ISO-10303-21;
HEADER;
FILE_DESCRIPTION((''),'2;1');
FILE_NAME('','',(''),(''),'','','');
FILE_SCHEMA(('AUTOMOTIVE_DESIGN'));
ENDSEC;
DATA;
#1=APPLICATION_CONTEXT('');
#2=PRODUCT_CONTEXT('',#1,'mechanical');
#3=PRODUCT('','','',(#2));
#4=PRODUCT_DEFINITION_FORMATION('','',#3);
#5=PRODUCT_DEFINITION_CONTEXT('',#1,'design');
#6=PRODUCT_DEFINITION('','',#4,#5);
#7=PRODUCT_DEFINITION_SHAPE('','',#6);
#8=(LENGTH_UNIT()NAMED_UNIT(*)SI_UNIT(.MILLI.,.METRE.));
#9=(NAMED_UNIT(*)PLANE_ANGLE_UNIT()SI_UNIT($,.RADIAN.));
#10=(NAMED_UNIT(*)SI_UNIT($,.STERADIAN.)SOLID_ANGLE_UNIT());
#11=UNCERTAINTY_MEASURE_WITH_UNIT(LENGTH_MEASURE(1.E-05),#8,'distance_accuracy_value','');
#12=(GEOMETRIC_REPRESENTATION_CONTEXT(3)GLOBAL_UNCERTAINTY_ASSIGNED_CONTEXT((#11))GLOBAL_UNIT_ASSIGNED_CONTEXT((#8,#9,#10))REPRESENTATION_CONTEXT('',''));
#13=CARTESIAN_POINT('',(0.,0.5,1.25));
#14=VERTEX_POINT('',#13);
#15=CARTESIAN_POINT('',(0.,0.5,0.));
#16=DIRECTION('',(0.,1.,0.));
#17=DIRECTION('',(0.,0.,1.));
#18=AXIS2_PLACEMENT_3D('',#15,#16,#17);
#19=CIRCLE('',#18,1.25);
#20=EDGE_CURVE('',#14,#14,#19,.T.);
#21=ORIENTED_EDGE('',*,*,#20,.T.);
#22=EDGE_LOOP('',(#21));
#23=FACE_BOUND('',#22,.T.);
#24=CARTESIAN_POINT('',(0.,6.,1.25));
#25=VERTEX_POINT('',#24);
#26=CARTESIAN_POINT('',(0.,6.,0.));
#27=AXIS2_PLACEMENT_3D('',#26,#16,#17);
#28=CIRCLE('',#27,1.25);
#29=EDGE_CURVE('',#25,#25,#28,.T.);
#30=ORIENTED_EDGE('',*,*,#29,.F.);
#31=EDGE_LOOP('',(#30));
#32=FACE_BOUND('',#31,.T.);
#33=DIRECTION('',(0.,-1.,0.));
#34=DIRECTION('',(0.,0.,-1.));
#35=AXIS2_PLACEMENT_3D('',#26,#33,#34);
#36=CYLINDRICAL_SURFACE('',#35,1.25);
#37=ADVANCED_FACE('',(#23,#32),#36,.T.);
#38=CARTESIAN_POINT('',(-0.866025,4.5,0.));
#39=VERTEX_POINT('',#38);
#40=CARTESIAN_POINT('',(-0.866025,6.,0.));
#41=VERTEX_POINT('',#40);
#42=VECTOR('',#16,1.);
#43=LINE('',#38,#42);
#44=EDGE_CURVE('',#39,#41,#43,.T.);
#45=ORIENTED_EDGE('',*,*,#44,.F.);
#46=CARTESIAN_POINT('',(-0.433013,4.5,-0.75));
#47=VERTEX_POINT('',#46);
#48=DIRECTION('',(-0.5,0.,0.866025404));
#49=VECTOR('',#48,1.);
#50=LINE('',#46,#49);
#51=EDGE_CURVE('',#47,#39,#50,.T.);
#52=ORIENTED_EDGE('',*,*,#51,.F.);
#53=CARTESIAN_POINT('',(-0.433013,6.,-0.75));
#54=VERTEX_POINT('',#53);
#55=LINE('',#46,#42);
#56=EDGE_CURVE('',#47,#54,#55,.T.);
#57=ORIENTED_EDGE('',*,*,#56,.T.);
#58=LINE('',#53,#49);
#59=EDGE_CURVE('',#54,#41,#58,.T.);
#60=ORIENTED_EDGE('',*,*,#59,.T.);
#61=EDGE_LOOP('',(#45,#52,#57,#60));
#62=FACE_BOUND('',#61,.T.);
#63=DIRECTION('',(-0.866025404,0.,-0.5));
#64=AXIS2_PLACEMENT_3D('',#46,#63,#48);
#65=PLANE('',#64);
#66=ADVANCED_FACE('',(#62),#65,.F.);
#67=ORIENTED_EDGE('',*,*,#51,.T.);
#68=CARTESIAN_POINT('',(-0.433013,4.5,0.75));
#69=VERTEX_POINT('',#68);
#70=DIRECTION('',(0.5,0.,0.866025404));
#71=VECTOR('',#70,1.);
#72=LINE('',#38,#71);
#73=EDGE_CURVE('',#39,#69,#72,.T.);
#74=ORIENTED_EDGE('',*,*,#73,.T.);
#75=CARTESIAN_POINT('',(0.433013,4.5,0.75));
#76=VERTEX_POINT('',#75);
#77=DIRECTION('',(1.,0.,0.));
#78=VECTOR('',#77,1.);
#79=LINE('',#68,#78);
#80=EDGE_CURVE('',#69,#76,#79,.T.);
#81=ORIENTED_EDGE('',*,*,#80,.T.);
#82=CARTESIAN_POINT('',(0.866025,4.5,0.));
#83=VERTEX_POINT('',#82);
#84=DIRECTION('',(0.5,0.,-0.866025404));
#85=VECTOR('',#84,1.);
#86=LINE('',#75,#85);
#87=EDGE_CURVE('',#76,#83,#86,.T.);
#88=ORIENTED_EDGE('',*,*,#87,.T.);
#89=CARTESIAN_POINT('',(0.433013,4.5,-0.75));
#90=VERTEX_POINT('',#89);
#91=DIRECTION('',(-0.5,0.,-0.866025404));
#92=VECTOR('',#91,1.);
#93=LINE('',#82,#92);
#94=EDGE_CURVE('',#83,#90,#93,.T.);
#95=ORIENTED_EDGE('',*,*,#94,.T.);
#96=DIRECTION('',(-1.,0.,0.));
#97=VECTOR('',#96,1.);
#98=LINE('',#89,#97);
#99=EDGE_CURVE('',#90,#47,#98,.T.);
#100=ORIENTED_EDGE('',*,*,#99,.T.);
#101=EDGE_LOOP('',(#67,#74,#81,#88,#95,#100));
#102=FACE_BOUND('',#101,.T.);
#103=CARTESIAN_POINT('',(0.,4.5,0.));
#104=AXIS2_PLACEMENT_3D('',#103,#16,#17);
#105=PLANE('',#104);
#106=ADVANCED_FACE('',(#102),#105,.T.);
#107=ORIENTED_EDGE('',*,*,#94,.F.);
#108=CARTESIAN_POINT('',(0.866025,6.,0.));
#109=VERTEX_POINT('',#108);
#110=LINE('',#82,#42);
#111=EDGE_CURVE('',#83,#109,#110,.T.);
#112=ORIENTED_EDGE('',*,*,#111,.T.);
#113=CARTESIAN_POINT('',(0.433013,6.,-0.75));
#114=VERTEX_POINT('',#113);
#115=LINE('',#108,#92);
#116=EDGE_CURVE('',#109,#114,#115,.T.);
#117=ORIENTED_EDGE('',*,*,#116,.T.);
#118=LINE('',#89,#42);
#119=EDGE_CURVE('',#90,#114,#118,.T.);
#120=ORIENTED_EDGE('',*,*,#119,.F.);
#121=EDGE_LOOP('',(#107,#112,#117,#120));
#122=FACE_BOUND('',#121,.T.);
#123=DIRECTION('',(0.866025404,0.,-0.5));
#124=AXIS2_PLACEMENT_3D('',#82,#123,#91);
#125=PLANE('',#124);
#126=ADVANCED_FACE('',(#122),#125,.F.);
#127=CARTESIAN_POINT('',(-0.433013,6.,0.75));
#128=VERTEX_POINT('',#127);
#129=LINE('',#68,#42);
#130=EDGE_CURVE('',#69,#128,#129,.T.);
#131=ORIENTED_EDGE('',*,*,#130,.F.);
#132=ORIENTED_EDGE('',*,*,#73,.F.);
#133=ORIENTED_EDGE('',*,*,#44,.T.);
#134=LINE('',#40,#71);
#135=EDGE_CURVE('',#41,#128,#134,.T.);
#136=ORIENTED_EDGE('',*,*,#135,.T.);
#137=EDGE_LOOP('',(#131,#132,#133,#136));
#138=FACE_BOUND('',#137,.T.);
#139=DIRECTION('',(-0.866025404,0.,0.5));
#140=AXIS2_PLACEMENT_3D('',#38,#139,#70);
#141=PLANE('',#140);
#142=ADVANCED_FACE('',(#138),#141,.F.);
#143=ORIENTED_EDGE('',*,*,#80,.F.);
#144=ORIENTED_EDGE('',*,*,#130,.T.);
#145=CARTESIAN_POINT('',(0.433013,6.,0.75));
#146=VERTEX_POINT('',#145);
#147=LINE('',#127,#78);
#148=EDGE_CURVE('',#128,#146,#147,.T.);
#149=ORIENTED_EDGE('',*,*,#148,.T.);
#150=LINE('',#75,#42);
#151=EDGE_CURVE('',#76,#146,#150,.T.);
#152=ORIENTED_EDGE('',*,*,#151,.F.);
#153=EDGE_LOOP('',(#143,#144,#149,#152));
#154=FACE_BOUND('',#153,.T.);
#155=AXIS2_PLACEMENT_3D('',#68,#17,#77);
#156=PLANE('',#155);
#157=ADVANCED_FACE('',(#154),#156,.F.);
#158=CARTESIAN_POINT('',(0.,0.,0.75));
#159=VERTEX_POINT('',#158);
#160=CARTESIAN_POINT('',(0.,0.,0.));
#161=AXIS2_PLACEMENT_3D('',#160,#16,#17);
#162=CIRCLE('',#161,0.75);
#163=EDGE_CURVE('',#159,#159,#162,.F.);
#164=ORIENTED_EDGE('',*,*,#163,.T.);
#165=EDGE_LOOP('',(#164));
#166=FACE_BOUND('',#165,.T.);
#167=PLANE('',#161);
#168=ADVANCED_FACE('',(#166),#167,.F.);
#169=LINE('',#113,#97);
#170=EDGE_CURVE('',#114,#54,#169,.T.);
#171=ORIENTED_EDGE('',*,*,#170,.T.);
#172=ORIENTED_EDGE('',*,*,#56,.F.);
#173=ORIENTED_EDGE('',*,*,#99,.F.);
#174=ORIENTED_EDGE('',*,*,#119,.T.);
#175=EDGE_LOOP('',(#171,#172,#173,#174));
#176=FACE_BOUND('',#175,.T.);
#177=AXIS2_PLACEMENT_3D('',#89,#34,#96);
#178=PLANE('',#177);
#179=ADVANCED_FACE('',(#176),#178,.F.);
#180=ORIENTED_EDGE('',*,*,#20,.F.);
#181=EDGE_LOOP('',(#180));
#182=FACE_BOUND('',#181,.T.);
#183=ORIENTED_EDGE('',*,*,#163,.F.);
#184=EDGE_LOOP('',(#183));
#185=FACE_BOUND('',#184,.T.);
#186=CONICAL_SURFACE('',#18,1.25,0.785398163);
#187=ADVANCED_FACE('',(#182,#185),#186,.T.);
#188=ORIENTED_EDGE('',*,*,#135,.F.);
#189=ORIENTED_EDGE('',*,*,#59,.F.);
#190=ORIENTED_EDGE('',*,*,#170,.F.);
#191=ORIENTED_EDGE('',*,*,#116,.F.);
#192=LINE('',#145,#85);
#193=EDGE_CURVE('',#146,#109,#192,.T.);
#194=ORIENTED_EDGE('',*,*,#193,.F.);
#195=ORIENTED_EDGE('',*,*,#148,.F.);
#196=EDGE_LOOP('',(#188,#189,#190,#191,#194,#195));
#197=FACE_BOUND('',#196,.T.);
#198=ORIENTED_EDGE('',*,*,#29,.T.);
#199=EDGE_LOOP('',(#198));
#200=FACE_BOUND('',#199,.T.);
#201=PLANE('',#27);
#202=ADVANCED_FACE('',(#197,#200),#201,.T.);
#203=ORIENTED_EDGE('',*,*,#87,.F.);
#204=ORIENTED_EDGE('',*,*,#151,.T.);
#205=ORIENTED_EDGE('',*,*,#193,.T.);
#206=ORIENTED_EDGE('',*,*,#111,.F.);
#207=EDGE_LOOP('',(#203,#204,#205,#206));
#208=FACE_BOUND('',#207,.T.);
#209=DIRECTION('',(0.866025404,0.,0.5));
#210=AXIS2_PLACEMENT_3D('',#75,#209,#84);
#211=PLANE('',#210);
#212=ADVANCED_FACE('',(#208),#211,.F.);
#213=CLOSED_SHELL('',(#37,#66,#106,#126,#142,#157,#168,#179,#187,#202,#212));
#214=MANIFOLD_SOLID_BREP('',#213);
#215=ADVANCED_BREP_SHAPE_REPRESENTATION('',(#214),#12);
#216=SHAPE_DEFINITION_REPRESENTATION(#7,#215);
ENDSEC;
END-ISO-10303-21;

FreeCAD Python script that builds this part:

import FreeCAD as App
import Part
import Sketcher
from FreeCAD import Vector
Q = App.Units.Quantity


def edges_at(feature, points):
    """Names of the edges that pass closest to the given points."""
    edges = feature.Shape.Edges
    near = lambda p: min(range(len(edges)), key=lambda i: edges[i].distToShape(Part.Vertex(*p))[0])
    return sorted({f"Edge{near(p) + 1}" for p in points})

doc = App.newDocument("Part")
body = doc.addObject("PartDesign::Body", "Body")

# Sketch on XZ plane
sketch1 = body.newObject("Sketcher::SketchObject", "Sketch")
sketch1.AttachmentSupport = (doc.getObject("XZ_Plane"), [""])
sketch1.MapMode = "FlatFace"
sketch1.addGeometry(Part.Circle(Vector(0, 0, 0), Vector(0, 0, 1), 1.2), False)
sketch1.addConstraint([
    Sketcher.Constraint("Coincident", 0, 3, -1, 1),
    Sketcher.Constraint("Diameter", 0, 2.5),
])
pad1 = body.newObject("PartDesign::Pad", "Pad")
pad1.Profile = sketch1
pad1.Length = 6
pad1.Reversed = True
doc.recompute()

chamfer = body.newObject("PartDesign::Chamfer", "Chamfer")
chamfer.Base = (pad1, edges_at(pad1, [(-1.25, 0, 0)]))
chamfer.Size = 0.5

# Sketch on XZ plane
sketch2 = body.newObject("Sketcher::SketchObject", "Sketch001")
sketch2.AttachmentSupport = (doc.getObject("XZ_Plane"), [""])
sketch2.MapMode = "FlatFace"
sketch2.AttachmentOffset = App.Placement(Vector(0, 0, -6), App.Rotation())
sketch2.addGeometry([
    Part.LineSegment(Vector(0.4, 0.8, 0), Vector(0.9, 0, 0)),  # 0
    Part.LineSegment(Vector(0.9, 0, 0), Vector(0.4, -0.8, 0)),  # 1
    Part.LineSegment(Vector(0.4, -0.8, 0), Vector(-0.4, -0.8, 0)),  # 2
    Part.LineSegment(Vector(-0.4, -0.8, 0), Vector(-0.9, 0, 0)),  # 3
    Part.LineSegment(Vector(-0.9, 0, 0), Vector(-0.4, 0.8, 0)),  # 4
    Part.LineSegment(Vector(-0.4, 0.8, 0), Vector(0.4, 0.8, 0)),  # 5
], False)
sketch2.addConstraint([
    Sketcher.Constraint("Coincident", 0, 2, 1, 1),
    Sketcher.Constraint("Coincident", 1, 2, 2, 1),
    Sketcher.Constraint("Coincident", 2, 2, 3, 1),
    Sketcher.Constraint("Coincident", 3, 2, 4, 1),
    Sketcher.Constraint("Coincident", 4, 2, 5, 1),
    Sketcher.Constraint("Coincident", 5, 2, 0, 1),
    Sketcher.Constraint("Horizontal", 2),
    Sketcher.Constraint("Horizontal", 5),
    Sketcher.Constraint("Symmetric", 0, 2, 3, 2, -1, 1),
    Sketcher.Constraint("Symmetric", 1, 2, 4, 2, -1, 1),
    Sketcher.Constraint("PointOnObject", 0, 2, -1),
    Sketcher.Constraint("Parallel", 0, 3),
    Sketcher.Constraint("Vertical", 2, 2, 4, 2),
    Sketcher.Constraint("Angle", 0, Q("-60 deg")),
    Sketcher.Constraint("DistanceY", 2, 2, 4, 2, 1.5),
    Sketcher.Constraint("DistanceX", 2, 2, 2, 1, 0.866025),
])
pocket1 = body.newObject("PartDesign::Pocket", "Pocket")
pocket1.Profile = sketch2
pocket1.Length = 1.5
pocket1.Reversed = True

doc.recompute()
